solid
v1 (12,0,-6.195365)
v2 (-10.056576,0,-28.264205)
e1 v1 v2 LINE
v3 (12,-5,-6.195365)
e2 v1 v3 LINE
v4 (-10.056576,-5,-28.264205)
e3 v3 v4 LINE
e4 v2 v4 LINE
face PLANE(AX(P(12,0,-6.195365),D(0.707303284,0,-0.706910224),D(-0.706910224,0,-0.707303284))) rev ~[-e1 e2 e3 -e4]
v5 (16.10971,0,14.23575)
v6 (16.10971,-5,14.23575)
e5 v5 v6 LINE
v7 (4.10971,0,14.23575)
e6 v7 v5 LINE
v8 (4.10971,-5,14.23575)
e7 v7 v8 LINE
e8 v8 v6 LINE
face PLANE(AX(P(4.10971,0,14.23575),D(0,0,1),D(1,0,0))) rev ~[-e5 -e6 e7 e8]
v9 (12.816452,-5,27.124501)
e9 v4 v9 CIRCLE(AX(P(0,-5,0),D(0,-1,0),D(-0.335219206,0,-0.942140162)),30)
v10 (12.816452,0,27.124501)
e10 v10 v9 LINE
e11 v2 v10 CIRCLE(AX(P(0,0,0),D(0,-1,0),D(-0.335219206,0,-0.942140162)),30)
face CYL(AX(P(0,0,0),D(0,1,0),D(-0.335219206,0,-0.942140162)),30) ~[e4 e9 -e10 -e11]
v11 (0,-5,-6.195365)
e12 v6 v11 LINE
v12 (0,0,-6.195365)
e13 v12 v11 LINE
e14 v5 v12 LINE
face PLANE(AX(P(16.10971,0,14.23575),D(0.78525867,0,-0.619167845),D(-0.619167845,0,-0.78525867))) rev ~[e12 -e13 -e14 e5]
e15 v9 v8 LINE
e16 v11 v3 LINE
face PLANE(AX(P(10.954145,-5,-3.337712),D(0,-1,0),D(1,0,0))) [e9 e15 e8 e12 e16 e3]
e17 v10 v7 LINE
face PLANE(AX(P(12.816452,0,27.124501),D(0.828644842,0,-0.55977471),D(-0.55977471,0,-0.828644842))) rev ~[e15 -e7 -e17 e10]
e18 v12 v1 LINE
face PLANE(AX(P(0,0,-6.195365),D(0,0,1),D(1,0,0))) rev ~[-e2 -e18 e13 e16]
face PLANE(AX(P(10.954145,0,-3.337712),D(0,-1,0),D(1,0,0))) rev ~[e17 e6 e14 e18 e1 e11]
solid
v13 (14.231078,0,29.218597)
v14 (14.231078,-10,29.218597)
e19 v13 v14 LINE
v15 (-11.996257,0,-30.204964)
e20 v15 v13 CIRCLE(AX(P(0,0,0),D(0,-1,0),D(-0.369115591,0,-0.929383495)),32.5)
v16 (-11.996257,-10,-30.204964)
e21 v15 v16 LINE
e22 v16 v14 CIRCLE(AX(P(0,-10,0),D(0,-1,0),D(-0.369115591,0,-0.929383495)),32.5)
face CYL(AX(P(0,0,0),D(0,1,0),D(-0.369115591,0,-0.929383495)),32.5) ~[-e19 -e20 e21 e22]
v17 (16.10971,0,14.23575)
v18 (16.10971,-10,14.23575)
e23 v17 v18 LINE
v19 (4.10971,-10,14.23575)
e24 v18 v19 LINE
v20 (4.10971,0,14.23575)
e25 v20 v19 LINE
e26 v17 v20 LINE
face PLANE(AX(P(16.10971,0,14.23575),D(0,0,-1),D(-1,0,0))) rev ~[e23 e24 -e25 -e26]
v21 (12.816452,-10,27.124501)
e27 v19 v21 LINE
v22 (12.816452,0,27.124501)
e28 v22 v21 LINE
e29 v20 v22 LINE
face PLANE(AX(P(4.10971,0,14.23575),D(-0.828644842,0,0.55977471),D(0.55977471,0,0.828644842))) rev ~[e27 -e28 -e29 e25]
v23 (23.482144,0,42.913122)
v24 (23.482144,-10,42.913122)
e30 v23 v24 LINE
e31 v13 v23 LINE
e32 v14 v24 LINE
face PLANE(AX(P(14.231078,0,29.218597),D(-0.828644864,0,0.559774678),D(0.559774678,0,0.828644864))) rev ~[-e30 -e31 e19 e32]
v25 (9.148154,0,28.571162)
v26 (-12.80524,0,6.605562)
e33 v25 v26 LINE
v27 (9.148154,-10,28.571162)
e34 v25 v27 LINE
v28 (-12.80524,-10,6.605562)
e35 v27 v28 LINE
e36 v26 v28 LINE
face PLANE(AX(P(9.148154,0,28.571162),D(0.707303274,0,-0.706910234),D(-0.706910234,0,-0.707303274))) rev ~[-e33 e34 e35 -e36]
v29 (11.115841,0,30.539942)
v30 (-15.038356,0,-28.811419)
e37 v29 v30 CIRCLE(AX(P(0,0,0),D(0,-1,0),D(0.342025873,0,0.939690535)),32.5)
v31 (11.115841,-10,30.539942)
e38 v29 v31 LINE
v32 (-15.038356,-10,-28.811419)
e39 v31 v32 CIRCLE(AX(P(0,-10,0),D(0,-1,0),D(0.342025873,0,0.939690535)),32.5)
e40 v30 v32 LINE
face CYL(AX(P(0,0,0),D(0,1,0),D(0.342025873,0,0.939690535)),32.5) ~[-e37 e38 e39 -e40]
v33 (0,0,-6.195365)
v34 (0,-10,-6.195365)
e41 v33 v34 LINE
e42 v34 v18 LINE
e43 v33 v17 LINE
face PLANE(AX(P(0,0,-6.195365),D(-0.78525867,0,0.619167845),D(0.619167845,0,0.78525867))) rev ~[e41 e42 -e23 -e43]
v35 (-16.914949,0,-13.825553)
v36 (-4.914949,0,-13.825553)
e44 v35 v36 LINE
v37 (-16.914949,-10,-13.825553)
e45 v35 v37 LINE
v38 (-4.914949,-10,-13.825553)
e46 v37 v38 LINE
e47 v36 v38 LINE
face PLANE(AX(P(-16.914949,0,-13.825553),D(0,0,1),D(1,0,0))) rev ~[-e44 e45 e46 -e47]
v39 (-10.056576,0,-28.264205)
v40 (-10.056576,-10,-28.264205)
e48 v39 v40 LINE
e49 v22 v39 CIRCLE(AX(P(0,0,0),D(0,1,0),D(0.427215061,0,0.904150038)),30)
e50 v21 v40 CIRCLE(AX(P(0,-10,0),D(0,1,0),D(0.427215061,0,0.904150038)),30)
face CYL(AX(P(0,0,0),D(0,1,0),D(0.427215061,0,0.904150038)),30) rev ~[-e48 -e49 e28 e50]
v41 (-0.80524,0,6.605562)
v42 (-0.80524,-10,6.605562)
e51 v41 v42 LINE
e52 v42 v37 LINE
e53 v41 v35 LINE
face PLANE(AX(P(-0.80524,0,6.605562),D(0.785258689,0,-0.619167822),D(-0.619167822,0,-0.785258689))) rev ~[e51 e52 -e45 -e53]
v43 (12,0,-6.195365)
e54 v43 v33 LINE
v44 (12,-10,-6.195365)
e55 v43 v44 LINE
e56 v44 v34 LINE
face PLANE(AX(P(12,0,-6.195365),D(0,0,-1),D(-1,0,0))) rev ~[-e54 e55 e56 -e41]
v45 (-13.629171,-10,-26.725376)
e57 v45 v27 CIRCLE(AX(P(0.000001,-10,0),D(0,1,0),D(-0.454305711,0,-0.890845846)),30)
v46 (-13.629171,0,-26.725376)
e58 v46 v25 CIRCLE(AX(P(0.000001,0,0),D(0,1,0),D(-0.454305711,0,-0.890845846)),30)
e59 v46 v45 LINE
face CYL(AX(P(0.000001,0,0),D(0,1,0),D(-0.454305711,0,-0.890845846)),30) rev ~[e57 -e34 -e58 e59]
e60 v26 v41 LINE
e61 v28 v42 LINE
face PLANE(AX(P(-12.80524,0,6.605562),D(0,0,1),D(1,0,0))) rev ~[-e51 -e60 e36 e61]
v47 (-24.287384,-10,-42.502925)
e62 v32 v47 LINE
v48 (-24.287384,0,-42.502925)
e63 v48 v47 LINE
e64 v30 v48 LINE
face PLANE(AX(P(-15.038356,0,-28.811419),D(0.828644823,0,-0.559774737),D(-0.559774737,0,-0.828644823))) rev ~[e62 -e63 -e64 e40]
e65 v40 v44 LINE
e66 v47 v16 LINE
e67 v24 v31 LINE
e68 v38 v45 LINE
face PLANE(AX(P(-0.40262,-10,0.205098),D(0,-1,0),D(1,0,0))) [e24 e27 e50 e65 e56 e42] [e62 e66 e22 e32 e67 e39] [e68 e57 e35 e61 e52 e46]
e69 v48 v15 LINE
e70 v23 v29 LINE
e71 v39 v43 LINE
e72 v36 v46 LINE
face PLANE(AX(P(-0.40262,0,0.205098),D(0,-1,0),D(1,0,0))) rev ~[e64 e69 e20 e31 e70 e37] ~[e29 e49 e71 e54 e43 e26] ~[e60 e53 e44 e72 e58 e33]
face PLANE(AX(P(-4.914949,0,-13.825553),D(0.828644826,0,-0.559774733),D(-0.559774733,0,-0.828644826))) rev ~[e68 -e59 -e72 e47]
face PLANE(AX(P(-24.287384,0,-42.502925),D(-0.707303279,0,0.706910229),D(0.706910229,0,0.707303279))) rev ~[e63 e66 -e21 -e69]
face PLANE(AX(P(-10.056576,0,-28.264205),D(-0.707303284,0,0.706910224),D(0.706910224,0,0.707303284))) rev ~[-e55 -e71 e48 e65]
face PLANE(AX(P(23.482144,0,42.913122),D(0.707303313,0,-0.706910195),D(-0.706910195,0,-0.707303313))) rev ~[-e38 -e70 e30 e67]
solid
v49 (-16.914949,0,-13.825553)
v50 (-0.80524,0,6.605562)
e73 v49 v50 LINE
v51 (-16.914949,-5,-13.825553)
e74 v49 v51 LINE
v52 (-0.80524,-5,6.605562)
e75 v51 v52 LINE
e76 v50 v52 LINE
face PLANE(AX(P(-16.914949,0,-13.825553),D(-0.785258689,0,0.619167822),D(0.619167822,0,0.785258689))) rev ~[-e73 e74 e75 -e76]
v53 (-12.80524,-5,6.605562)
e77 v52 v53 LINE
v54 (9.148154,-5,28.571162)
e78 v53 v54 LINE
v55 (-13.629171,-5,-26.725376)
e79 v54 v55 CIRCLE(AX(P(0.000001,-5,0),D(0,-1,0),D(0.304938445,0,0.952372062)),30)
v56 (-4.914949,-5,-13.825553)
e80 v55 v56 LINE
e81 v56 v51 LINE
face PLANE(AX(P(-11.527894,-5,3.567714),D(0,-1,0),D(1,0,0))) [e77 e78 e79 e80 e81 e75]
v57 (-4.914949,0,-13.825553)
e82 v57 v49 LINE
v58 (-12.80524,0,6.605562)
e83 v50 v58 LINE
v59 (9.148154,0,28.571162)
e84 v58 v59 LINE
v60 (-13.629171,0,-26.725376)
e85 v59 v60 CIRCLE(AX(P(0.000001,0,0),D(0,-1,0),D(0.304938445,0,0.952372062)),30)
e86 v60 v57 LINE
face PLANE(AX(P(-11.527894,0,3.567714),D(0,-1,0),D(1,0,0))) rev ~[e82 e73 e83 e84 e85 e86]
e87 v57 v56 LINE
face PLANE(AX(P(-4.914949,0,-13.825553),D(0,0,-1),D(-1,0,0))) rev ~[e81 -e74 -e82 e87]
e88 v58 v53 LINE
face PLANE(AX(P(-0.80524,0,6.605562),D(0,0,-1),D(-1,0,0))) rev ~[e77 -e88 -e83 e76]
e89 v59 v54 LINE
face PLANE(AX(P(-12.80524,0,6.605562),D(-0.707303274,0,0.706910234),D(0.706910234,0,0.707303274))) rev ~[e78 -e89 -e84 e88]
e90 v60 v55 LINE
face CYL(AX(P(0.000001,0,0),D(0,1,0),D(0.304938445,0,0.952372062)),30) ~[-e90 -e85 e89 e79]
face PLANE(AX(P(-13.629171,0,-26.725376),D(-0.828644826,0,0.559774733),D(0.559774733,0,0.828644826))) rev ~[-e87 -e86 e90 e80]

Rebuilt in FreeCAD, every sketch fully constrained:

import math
import FreeCAD as App
import Part
import Sketcher

V = App.Vector

doc = App.newDocument("Part")
body = doc.addObject("PartDesign::Body", "Body")
body.AllowCompound = True

# Sketch on XZ plane
sketch1 = doc.addObject("Sketcher::SketchObject", "Sketch")
body.addObject(sketch1)
sketch1.AttachmentSupport = (doc.XZ_Plane, [""])
sketch1.MapMode = "FlatFace"
sketch1.addGeometry([
    Part.LineSegment(V(-13, 7, 0), V(9, 29, 0)),  # 0
    Part.ArcOfCircle(Part.Circle(V(0, 0, 0), V(0, 0, 1), 30), math.radians(72), math.radians(243)),  # 1
    Part.LineSegment(V(-14, -27, 0), V(-5, -14, 0)),  # 2
    Part.LineSegment(V(-5, -14, 0), V(-17, -14, 0)),  # 3
    Part.LineSegment(V(-17, -14, 0), V(-1, 7, 0)),  # 4
    Part.LineSegment(V(-1, 7, 0), V(-13, 7, 0)),  # 5
    Part.ArcOfCircle(Part.Circle(V(0, 0, 0), V(0, 0, 1), 30), math.radians(-110), math.radians(65)),  # 6
    Part.LineSegment(V(13, 27, 0), V(4, 14, 0)),  # 7
    Part.LineSegment(V(4, 14, 0), V(16, 14, 0)),  # 8
    Part.LineSegment(V(16, 14, 0), V(0, -6, 0)),  # 9
    Part.LineSegment(V(0, -6, 0), V(12, -6, 0)),  # 10
    Part.LineSegment(V(12, -6, 0), V(-10, -28, 0)),  # 11
], False)
sketch1.addConstraint([
    Sketcher.Constraint("Coincident", 0, 2, 1, 1),
    Sketcher.Constraint("Coincident", 1, 2, 2, 1),
    Sketcher.Constraint("Coincident", 2, 2, 3, 1),
    Sketcher.Constraint("Coincident", 3, 2, 4, 1),
    Sketcher.Constraint("Coincident", 4, 2, 5, 1),
    Sketcher.Constraint("Coincident", 5, 2, 0, 1),
    Sketcher.Constraint("Coincident", 6, 2, 7, 1),
    Sketcher.Constraint("Coincident", 7, 2, 8, 1),
    Sketcher.Constraint("Coincident", 8, 2, 9, 1),
    Sketcher.Constraint("Coincident", 9, 2, 10, 1),
    Sketcher.Constraint("Coincident", 10, 2, 11, 1),
    Sketcher.Constraint("Coincident", 11, 2, 6, 1),
    Sketcher.Constraint("Horizontal", 3),
    Sketcher.Constraint("Horizontal", 5),
    Sketcher.Constraint("Horizontal", 8),
    Sketcher.Constraint("Horizontal", 10),
    Sketcher.Constraint("Coincident", 1, 3, -1, 1),
    Sketcher.Constraint("Coincident", 6, 3, -1, 1),
    Sketcher.Constraint("Equal", 1, 6),
    Sketcher.Constraint("PointOnObject", 9, 2, -2),
    Sketcher.Constraint("Parallel", 2, 7),
    Sketcher.Constraint("Parallel", 4, 9),
    Sketcher.Constraint("Parallel", 0, 11),
    Sketcher.Constraint("Equal", 3, 5),
    Sketcher.Constraint("Equal", 5, 8),
    Sketcher.Constraint("Equal", 8, 10),
    Sketcher.Constraint("Equal", 4, 9),
    Sketcher.Constraint("Radius", 1, 30.0),
    Sketcher.Constraint("DistanceX", 3, 2, 3, 1, 12.0),
    Sketcher.Constraint("DistanceY", -1, 1, 6, 2, 27.124501),
    Sketcher.Constraint("DistanceY", 4, 2, 0, 2, 21.9656),
    Sketcher.Constraint("DistanceX", 0, 2, 6, 2, 3.668298),
    Sketcher.Constraint("Distance", 0, 31.05542),
    Sketcher.Constraint("Distance", 7, 15.554011),
    Sketcher.Constraint("DistanceX", 1, 2, -1, 1, 13.629171),
    Sketcher.Constraint("DistanceX", 2, 2, -1, 1, 4.914949),
])
pad1 = doc.addObject("PartDesign::Pad", "Pad")
body.addObject(pad1)
pad1.Profile = sketch1
pad1.Length = 5
body2 = doc.addObject("PartDesign::Body", "Body001")

# Sketch on XZ plane
sketch2 = doc.addObject("Sketcher::SketchObject", "Sketch001")
body2.addObject(sketch2)
sketch2.AttachmentSupport = (doc.getObject("XZ_Plane001"), [""])
sketch2.MapMode = "FlatFace"
sketch2.addGeometry([
    Part.LineSegment(V(-15, -29, 0), V(-24, -43, 0)),  # 0
    Part.LineSegment(V(-24, -43, 0), V(-12, -30, 0)),  # 1
    Part.ArcOfCircle(Part.Circle(V(0, 0, 0), V(0, 0, 1), 33), math.radians(-112), math.radians(64)),  # 2
    Part.LineSegment(V(14, 29, 0), V(23, 43, 0)),  # 3
    Part.LineSegment(V(23, 43, 0), V(11, 31, 0)),  # 4
    Part.ArcOfCircle(Part.Circle(V(0, 0, 0), V(0, 0, 1), 32), math.radians(70), math.radians(242)),  # 5
    Part.LineSegment(V(9, 29, 0), V(-13, 7, 0)),  # 6
    Part.LineSegment(V(-13, 7, 0), V(-1, 7, 0)),  # 7
    Part.LineSegment(V(-1, 7, 0), V(-17, -14, 0)),  # 8
    Part.LineSegment(V(-17, -14, 0), V(-5, -14, 0)),  # 9
    Part.LineSegment(V(-5, -14, 0), V(-14, -27, 0)),  # 10
    Part.ArcOfCircle(Part.Circle(V(0, 0, 0), V(0, 0, 1), 30), math.radians(72), math.radians(243)),  # 11
    Part.LineSegment(V(-10, -28, 0), V(12, -6, 0)),  # 12
    Part.LineSegment(V(12, -6, 0), V(0, -6, 0)),  # 13
    Part.LineSegment(V(0, -6, 0), V(16, 14, 0)),  # 14
    Part.LineSegment(V(16, 14, 0), V(4, 14, 0)),  # 15
    Part.LineSegment(V(4, 14, 0), V(13, 27, 0)),  # 16
    Part.ArcOfCircle(Part.Circle(V(0, 0, 0), V(0, 0, 1), 30), math.radians(-110), math.radians(65)),  # 17
], False)
sketch2.addConstraint([
    Sketcher.Constraint("Coincident", 0, 2, 1, 1),
    Sketcher.Constraint("Coincident", 1, 2, 2, 1),
    Sketcher.Constraint("Coincident", 2, 2, 3, 1),
    Sketcher.Constraint("Coincident", 3, 2, 4, 1),
    Sketcher.Constraint("Coincident", 4, 2, 5, 1),
    Sketcher.Constraint("Coincident", 5, 2, 0, 1),
    Sketcher.Constraint("Coincident", 6, 2, 7, 1),
    Sketcher.Constraint("Coincident", 7, 2, 8, 1),
    Sketcher.Constraint("Coincident", 8, 2, 9, 1),
    Sketcher.Constraint("Coincident", 9, 2, 10, 1),
    Sketcher.Constraint("Coincident", 10, 2, 11, 2),
    Sketcher.Constraint("Coincident", 11, 1, 6, 1),
    Sketcher.Constraint("Coincident", 12, 2, 13, 1),
    Sketcher.Constraint("Coincident", 13, 2, 14, 1),
    Sketcher.Constraint("Coincident", 14, 2, 15, 1),
    Sketcher.Constraint("Coincident", 15, 2, 16, 1),
    Sketcher.Constraint("Coincident", 16, 2, 17, 2),
    Sketcher.Constraint("Coincident", 17, 1, 12, 1),
    Sketcher.Constraint("Horizontal", 7),
    Sketcher.Constraint("Horizontal", 9),
    Sketcher.Constraint("Horizontal", 13),
    Sketcher.Constraint("Horizontal", 15),
    Sketcher.Constraint("Coincident", 2, 3, -1, 1),
    Sketcher.Constraint("Coincident", 5, 3, -1, 1),
    Sketcher.Constraint("Coincident", 11, 3, -1, 1),
    Sketcher.Constraint("Coincident", 17, 3, -1, 1),
    Sketcher.Constraint("Equal", 2, 5),
    Sketcher.Constraint("Equal", 11, 17),
    Sketcher.Constraint("PointOnObject", 13, 2, -2),
    Sketcher.Constraint("Parallel", 0, 3),
    Sketcher.Constraint("Parallel", 1, 4),
    Sketcher.Constraint("Parallel", 4, 6),
    Sketcher.Constraint("Parallel", 3, 10),
    Sketcher.Constraint("Parallel", 6, 12),
    Sketcher.Constraint("Parallel", 8, 14),
    Sketcher.Constraint("Parallel", 10, 16),
    Sketcher.Constraint("Equal", 7, 9),
    Sketcher.Constraint("Equal", 9, 13),
    Sketcher.Constraint("Equal", 13, 15),
    Sketcher.Constraint("Equal", 8, 14),
    Sketcher.Constraint("Radius", 11, 30.0),
    Sketcher.Constraint("Radius", 2, 32.5),
    Sketcher.Constraint("DistanceX", 7, 1, 7, 2, 12.0),
    Sketcher.Constraint("DistanceY", -1, 1, 16, 2, 27.124501),
    Sketcher.Constraint("DistanceX", 5, 2, 1, 2, 3.042099),
    Sketcher.Constraint("DistanceY", 7, 2, 11, 1, 21.9656),
    Sketcher.Constraint("DistanceX", 11, 1, 16, 2, 3.668298),
    Sketcher.Constraint("Distance", 1, 17.387112),
    Sketcher.Constraint("Distance", 3, 16.52641),
    Sketcher.Constraint("Distance", 6, 31.05542),
    Sketcher.Constraint("Distance", 16, 15.554011),
    Sketcher.Constraint("DistanceX", -1, 1, 4, 2, 11.115841),
    Sketcher.Constraint("DistanceY", 5, 2, -1, 1, 28.811419),
    Sketcher.Constraint("DistanceX", 10, 2, -1, 1, 13.629171),
])
pad2 = doc.addObject("PartDesign::Pad", "Pad001")
body2.addObject(pad2)
pad2.Profile = sketch2
pad2.Length = 10

doc.recompute()
